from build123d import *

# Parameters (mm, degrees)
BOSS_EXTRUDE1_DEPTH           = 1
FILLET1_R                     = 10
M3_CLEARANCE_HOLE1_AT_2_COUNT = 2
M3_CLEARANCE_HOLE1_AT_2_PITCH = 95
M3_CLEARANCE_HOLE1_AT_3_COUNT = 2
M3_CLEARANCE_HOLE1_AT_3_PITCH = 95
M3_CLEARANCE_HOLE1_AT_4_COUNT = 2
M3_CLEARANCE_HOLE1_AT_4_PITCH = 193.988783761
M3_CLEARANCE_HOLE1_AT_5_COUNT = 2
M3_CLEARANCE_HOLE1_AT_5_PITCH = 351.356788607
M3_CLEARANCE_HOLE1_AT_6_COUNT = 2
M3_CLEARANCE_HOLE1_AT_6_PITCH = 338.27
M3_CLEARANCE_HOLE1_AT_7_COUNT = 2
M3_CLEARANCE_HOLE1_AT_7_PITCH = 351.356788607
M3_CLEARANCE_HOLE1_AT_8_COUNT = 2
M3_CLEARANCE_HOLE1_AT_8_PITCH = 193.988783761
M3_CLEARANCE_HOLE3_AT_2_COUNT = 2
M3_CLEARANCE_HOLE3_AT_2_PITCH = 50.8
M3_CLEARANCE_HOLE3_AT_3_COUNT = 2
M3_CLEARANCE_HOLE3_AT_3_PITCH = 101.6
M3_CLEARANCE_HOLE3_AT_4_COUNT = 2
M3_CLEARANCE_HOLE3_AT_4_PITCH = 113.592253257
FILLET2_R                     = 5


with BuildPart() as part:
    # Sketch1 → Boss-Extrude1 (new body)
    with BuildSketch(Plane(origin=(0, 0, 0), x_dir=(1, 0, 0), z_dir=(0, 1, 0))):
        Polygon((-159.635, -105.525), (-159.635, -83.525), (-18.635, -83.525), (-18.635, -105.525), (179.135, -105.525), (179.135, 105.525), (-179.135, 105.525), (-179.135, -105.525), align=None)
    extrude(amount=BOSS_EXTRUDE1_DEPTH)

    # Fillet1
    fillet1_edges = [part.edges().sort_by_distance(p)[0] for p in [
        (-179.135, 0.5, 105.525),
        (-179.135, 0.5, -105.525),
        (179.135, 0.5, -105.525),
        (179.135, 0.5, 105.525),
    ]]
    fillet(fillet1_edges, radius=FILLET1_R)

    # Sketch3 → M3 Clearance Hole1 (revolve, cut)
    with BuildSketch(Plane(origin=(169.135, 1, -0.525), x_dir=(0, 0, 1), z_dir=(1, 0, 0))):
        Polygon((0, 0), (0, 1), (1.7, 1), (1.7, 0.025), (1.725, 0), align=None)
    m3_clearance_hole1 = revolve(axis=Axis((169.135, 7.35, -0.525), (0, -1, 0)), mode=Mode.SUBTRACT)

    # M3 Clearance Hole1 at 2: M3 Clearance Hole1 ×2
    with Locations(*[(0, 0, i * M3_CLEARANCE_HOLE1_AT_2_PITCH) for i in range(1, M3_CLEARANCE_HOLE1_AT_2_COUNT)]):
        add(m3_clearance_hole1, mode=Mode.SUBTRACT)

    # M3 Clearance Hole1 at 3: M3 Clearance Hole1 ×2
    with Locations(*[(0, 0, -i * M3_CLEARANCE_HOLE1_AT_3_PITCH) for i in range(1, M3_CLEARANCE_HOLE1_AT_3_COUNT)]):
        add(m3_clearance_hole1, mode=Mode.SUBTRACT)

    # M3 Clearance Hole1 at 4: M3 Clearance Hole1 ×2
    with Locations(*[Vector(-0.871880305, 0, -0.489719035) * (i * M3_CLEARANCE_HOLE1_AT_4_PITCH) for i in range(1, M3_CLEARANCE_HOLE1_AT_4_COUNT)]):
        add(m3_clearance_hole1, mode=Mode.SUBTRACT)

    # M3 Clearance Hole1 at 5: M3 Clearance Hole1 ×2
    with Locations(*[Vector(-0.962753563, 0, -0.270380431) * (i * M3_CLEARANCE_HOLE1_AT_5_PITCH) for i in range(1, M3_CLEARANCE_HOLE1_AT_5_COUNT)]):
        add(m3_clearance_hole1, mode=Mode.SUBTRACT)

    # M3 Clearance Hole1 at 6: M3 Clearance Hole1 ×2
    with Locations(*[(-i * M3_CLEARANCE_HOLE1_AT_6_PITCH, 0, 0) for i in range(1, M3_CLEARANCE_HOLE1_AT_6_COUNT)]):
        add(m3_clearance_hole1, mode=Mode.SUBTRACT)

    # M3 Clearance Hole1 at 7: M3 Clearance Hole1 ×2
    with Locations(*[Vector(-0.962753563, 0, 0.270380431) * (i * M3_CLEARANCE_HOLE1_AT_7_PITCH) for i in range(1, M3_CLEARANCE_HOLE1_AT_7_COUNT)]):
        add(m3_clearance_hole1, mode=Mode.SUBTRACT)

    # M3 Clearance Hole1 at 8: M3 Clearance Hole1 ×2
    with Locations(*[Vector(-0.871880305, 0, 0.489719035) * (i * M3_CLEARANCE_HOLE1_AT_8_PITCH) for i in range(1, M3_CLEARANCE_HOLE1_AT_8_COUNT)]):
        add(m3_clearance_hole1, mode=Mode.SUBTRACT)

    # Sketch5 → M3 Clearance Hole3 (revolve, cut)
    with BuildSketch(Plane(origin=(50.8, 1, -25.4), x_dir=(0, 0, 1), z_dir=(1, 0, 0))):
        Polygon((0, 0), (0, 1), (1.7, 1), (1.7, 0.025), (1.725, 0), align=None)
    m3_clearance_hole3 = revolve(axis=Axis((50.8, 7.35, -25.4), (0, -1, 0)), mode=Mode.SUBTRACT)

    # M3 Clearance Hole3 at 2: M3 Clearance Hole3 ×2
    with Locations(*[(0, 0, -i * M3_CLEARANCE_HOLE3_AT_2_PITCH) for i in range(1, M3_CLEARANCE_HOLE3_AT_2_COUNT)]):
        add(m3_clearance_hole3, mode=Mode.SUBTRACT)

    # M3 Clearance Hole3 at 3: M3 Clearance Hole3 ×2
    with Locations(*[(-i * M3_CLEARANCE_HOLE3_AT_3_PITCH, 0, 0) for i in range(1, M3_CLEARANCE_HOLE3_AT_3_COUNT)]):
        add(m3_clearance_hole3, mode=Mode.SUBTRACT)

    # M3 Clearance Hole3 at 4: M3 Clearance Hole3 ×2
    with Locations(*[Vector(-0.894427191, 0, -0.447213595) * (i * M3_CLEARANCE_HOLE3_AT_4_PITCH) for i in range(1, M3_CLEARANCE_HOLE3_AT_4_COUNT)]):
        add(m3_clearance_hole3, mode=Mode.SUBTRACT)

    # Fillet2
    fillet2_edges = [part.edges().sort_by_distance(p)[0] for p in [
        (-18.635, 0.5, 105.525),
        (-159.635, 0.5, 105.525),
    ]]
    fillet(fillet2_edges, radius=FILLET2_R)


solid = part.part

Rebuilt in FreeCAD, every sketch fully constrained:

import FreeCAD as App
import Part
import Sketcher
Q = App.Units.Quantity


def edges_at(feature, points):
    """Names of the edges that pass closest to the given points."""
    edges = feature.Shape.Edges
    near = lambda p: min(range(len(edges)), key=lambda i: edges[i].distToShape(Part.Vertex(*p))[0])
    return sorted({f"Edge{near(p) + 1}" for p in points})


def add_polygon(sketch, points):
    """Adds a closed chain of lines whose ends are joined by coincident constraints."""
    first, n = sketch.GeometryCount, len(points)
    for a, b in zip(points, points[1:] + points[:1]):
        sketch.addGeometry(Part.LineSegment(App.Vector(*a, 0), App.Vector(*b, 0)), False)
    for i in range(n):
        sketch.addConstraint(Sketcher.Constraint("Coincident", first + i, 2, first + (i + 1) % n, 1))

doc = App.newDocument("Part")
body = doc.addObject("PartDesign::Body", "Body")

sketch1 = body.newObject("Sketcher::SketchObject", "Sketch")
sketch1.AttachmentSupport = (doc.getObject("XZ_Plane"), [""])
sketch1.MapMode = "FlatFace"
add_polygon(sketch1, [(-160, 106), (-160, 84), (-19, 84), (-19, 106), (179, 106), (179, -106), (-179, -106), (-179, 106)])
sketch1.addConstraint(Sketcher.Constraint("Vertical", 0))
sketch1.addConstraint(Sketcher.Constraint("Horizontal", 1))
sketch1.addConstraint(Sketcher.Constraint("Vertical", 2))
sketch1.addConstraint(Sketcher.Constraint("Horizontal", 3))
sketch1.addConstraint(Sketcher.Constraint("Vertical", 4))
sketch1.addConstraint(Sketcher.Constraint("Horizontal", 5))
sketch1.addConstraint(Sketcher.Constraint("Vertical", 6))
sketch1.addConstraint(Sketcher.Constraint("Horizontal", 7))
sketch1.addConstraint(Sketcher.Constraint("Symmetric", 3, 2, 5, 2, -1, 1))
sketch1.addConstraint(Sketcher.Constraint("Horizontal", 3, 2, 6, 2))
sketch1.addConstraint(Sketcher.Constraint("DistanceX", 1, 1, 1, 2, Q("141 mm")))
sketch1.addConstraint(Sketcher.Constraint("DistanceY", 0, 2, 0, 1, Q("22 mm")))
sketch1.addConstraint(Sketcher.Constraint("DistanceX", 7, 1, 7, 2, Q("19.5 mm")))
sketch1.addConstraint(Sketcher.Constraint("DistanceX", 3, 1, 3, 2, Q("197.77 mm")))
sketch1.addConstraint(Sketcher.Constraint("DistanceY", 4, 2, 4, 1, Q("211.05 mm")))
pad1 = body.newObject("PartDesign::Pad", "Pad")
pad1.Profile = sketch1
pad1.Length = 1
pad1.Reversed = True
doc.recompute()

fillet = body.newObject("PartDesign::Fillet", "Fillet")
fillet.Base = (pad1, edges_at(pad1, [
    (-179.135, 0.5, 105.525),
    (-179.135, 0.5, -105.525),
    (179.135, 0.5, -105.525),
    (179.135, 0.5, 105.525),
]))
fillet.Radius = 10

sketch2 = body.newObject("Sketcher::SketchObject", "Sketch001")
sketch2.AttachmentSupport = (doc.getObject("YZ_Plane"), [""])
sketch2.MapMode = "FlatFace"
sketch2.AttachmentOffset = App.Placement(App.Vector(0, 0, 169.135), App.Rotation())
add_polygon(sketch2, [(0, -0.525), (1, -0.525), (1, 1.2), (0.975, 1.175), (0, 1.175)])
sketch2.addGeometry(Part.LineSegment(App.Vector(1, -0.525, 0), App.Vector(0, -0.525, 0)), True)
sketch2.addConstraint(Sketcher.Constraint("Horizontal", 0))
sketch2.addConstraint(Sketcher.Constraint("Vertical", 1))
sketch2.addConstraint(Sketcher.Constraint("Horizontal", 3))
sketch2.addConstraint(Sketcher.Constraint("Vertical", 4))
sketch2.addConstraint(Sketcher.Constraint("Horizontal", 5))
sketch2.addConstraint(Sketcher.Constraint("Coincident", 5, 1, 0, 2))
sketch2.addConstraint(Sketcher.Constraint("PointOnObject", 3, 2, -2))
sketch2.addConstraint(Sketcher.Constraint("PointOnObject", 5, 2, -2))
sketch2.addConstraint(Sketcher.Constraint("DistanceX", 0, 1, 0, 2, Q("1 mm")))
sketch2.addConstraint(Sketcher.Constraint("Angle", 2, Q("-135 deg")))
sketch2.addConstraint(Sketcher.Constraint("DistanceY", 4, 2, 4, 1, Q("1.7 mm")))
sketch2.addConstraint(Sketcher.Constraint("DistanceY", -1, 1, 1, 2, Q("1.2 mm")))
sketch2.addConstraint(Sketcher.Constraint("DistanceX", 3, 2, 3, 1, Q("0.975 mm")))
groove = body.newObject("PartDesign::Groove", "Groove")
groove.Profile = sketch2
groove.ReferenceAxis = (sketch2, ["Axis0"])
groove.Angle = 360
doc.recompute()

linearpattern = body.newObject("PartDesign::LinearPattern", "LinearPattern")
linearpattern.Originals = [groove]
linearpattern.Direction = (doc.getObject("Z_Axis"), [""])
linearpattern.Mode = "offset"
linearpattern.Offset = 95
linearpattern.Occurrences = 2
body.Tip = linearpattern
doc.recompute()

linearpattern2 = body.newObject("PartDesign::LinearPattern", "LinearPattern001")
linearpattern2.Originals = [groove]
linearpattern2.Direction = (doc.getObject("Z_Axis"), [""])
linearpattern2.Mode = "offset"
linearpattern2.Offset = 95
linearpattern2.Occurrences = 2
linearpattern2.Reversed = True
body.Tip = linearpattern2
doc.recompute()

datumline = body.newObject("PartDesign::Line", "DatumLine")
datumline.Placement = App.Placement(App.Vector(0, 0, 0), App.Rotation(App.Vector(0, 0, 1), App.Vector(-0.871880305, 0, -0.489719035)))
linearpattern3 = body.newObject("PartDesign::LinearPattern", "LinearPattern002")
linearpattern3.Originals = [groove]
linearpattern3.Direction = (datumline, [""])
linearpattern3.Mode = "offset"
linearpattern3.Offset = 193.988784
linearpattern3.Occurrences = 2
body.Tip = linearpattern3
doc.recompute()

datumline2 = body.newObject("PartDesign::Line", "DatumLine001")
datumline2.Placement = App.Placement(App.Vector(0, 0, 0), App.Rotation(App.Vector(0, 0, 1), App.Vector(-0.962753563, 0, -0.270380431)))
linearpattern4 = body.newObject("PartDesign::LinearPattern", "LinearPattern003")
linearpattern4.Originals = [groove]
linearpattern4.Direction = (datumline2, [""])
linearpattern4.Mode = "offset"
linearpattern4.Offset = 351.356789
linearpattern4.Occurrences = 2
body.Tip = linearpattern4
doc.recompute()

linearpattern5 = body.newObject("PartDesign::LinearPattern", "LinearPattern004")
linearpattern5.Originals = [groove]
linearpattern5.Direction = (doc.getObject("X_Axis"), [""])
linearpattern5.Mode = "offset"
linearpattern5.Offset = 338.27
linearpattern5.Occurrences = 2
linearpattern5.Reversed = True
body.Tip = linearpattern5
doc.recompute()

datumline3 = body.newObject("PartDesign::Line", "DatumLine002")
datumline3.Placement = App.Placement(App.Vector(0, 0, 0), App.Rotation(App.Vector(0, 0, 1), App.Vector(-0.962753563, 0, 0.270380431)))
linearpattern6 = body.newObject("PartDesign::LinearPattern", "LinearPattern005")
linearpattern6.Originals = [groove]
linearpattern6.Direction = (datumline3, [""])
linearpattern6.Mode = "offset"
linearpattern6.Offset = 351.356789
linearpattern6.Occurrences = 2
body.Tip = linearpattern6
doc.recompute()

datumline4 = body.newObject("PartDesign::Line", "DatumLine003")
datumline4.Placement = App.Placement(App.Vector(0, 0, 0), App.Rotation(App.Vector(0, 0, 1), App.Vector(-0.871880305, 0, 0.489719035)))
linearpattern7 = body.newObject("PartDesign::LinearPattern", "LinearPattern006")
linearpattern7.Originals = [groove]
linearpattern7.Direction = (datumline4, [""])
linearpattern7.Mode = "offset"
linearpattern7.Offset = 193.988784
linearpattern7.Occurrences = 2
body.Tip = linearpattern7

sketch3 = body.newObject("Sketcher::SketchObject", "Sketch002")
sketch3.AttachmentSupport = (doc.getObject("YZ_Plane"), [""])
sketch3.MapMode = "FlatFace"
sketch3.AttachmentOffset = App.Placement(App.Vector(0, 0, 50.8), App.Rotation())
add_polygon(sketch3, [(0, -25.4), (1, -25.4), (1, -23.675), (0.975, -23.7), (0, -23.7)])
sketch3.addGeometry(Part.LineSegment(App.Vector(1, -25.4, 0), App.Vector(0, -25.4, 0)), True)
sketch3.addConstraint(Sketcher.Constraint("Horizontal", 0))
sketch3.addConstraint(Sketcher.Constraint("Vertical", 1))
sketch3.addConstraint(Sketcher.Constraint("Horizontal", 3))
sketch3.addConstraint(Sketcher.Constraint("Vertical", 4))
sketch3.addConstraint(Sketcher.Constraint("Horizontal", 5))
sketch3.addConstraint(Sketcher.Constraint("Coincident", 5, 1, 0, 2))
sketch3.addConstraint(Sketcher.Constraint("PointOnObject", 3, 2, -2))
sketch3.addConstraint(Sketcher.Constraint("PointOnObject", 5, 2, -2))
sketch3.addConstraint(Sketcher.Constraint("DistanceX", 0, 1, 0, 2, Q("1 mm")))
sketch3.addConstraint(Sketcher.Constraint("Angle", 2, Q("-135 deg")))
sketch3.addConstraint(Sketcher.Constraint("DistanceY", 4, 2, 4, 1, Q("1.7 mm")))
sketch3.addConstraint(Sketcher.Constraint("DistanceY", 0, 2, -1, 1, Q("25.4 mm")))
sketch3.addConstraint(Sketcher.Constraint("DistanceX", 3, 2, 3, 1, Q("0.975 mm")))
groove2 = body.newObject("PartDesign::Groove", "Groove001")
groove2.Profile = sketch3
groove2.ReferenceAxis = (sketch3, ["Axis0"])
groove2.Angle = 360
doc.recompute()

linearpattern8 = body.newObject("PartDesign::LinearPattern", "LinearPattern007")
linearpattern8.Originals = [groove2]
linearpattern8.Direction = (doc.getObject("Z_Axis"), [""])
linearpattern8.Mode = "offset"
linearpattern8.Offset = 50.8
linearpattern8.Occurrences = 2
linearpattern8.Reversed = True
body.Tip = linearpattern8
doc.recompute()

linearpattern9 = body.newObject("PartDesign::LinearPattern", "LinearPattern008")
linearpattern9.Originals = [groove2]
linearpattern9.Direction = (doc.getObject("X_Axis"), [""])
linearpattern9.Mode = "offset"
linearpattern9.Offset = 101.6
linearpattern9.Occurrences = 2
linearpattern9.Reversed = True
body.Tip = linearpattern9
doc.recompute()

datumline5 = body.newObject("PartDesign::Line", "DatumLine004")
datumline5.Placement = App.Placement(App.Vector(0, 0, 0), App.Rotation(App.Vector(0, 0, 1), App.Vector(-0.894427191, 0, -0.447213595)))
linearpattern10 = body.newObject("PartDesign::LinearPattern", "LinearPattern009")
linearpattern10.Originals = [groove2]
linearpattern10.Direction = (datumline5, [""])
linearpattern10.Mode = "offset"
linearpattern10.Offset = 113.592253
linearpattern10.Occurrences = 2
body.Tip = linearpattern10
doc.recompute()

fillet2 = body.newObject("PartDesign::Fillet", "Fillet001")
fillet2.Base = (linearpattern10, edges_at(linearpattern10, [(-18.635, 0.5, 105.525), (-159.635, 0.5, 105.525)]))
fillet2.Radius = 5

doc.recompute()
